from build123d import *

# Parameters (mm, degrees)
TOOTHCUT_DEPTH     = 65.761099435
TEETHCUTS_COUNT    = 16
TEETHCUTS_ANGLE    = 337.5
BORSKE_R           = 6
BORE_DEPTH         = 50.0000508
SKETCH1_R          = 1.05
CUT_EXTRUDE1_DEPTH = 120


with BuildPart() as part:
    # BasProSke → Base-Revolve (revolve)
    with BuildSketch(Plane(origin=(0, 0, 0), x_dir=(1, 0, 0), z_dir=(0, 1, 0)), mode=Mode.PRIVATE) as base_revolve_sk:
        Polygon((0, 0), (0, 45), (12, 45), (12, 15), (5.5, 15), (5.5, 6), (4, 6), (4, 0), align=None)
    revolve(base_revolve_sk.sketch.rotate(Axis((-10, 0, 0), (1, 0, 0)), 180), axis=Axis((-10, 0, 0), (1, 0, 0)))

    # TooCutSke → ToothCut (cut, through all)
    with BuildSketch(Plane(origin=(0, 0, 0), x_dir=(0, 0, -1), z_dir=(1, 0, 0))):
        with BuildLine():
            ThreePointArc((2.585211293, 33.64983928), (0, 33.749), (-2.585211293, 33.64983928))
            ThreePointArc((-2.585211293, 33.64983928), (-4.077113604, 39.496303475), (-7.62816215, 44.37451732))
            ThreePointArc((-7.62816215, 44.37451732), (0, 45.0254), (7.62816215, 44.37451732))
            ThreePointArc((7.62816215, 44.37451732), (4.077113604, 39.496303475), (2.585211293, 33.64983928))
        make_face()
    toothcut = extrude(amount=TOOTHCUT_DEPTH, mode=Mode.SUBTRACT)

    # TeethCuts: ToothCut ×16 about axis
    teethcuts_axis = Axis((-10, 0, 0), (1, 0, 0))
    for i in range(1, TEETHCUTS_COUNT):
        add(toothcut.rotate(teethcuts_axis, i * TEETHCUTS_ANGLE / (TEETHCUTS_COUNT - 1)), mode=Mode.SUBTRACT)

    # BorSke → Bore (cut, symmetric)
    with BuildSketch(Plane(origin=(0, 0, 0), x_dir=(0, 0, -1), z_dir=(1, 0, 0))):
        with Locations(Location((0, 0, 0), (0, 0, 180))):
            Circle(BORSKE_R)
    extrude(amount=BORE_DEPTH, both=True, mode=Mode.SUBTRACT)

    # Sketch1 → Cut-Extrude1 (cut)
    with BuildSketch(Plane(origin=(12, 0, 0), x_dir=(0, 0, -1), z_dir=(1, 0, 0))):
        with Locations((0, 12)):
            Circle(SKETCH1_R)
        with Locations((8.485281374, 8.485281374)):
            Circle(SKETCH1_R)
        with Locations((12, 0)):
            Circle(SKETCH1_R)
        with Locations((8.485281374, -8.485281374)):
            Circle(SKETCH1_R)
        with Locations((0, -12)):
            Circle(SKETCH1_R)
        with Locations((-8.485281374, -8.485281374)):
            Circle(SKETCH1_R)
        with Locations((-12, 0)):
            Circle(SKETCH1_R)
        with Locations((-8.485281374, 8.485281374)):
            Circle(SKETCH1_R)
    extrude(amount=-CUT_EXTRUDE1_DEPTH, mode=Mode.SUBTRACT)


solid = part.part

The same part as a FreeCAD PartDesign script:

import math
import FreeCAD as App
import Part
import Sketcher

V = App.Vector

doc = App.newDocument("Part")
params = doc.addObject("Spreadsheet::Sheet", "Params")
for row, (alias, value) in enumerate([
    ("sketch1_width", "4 mm"),
    ("sketch1_width2", "12 mm"),
    ("sketch1_height", "45 mm"),
    ("sketch1_height2", "6 mm"),
    ("sketch1_height3", "9 mm"),
    ("revolution_angle", "360 deg"),
    ("sketch2_radius", "16 mm"),
    ("sketch3_diameter", "12 mm"),
    ("pocket2_length", "100.000102 mm"),
    ("sketch4_diameter", "2.1 mm"),
    ("pocket3_length", "120 mm"),
], start=1):
    params.set(f"A{row}", alias)
    params.set(f"B{row}", "=" + value)
    params.setAlias(f"B{row}", alias)

body = doc.addObject("PartDesign::Body", "Body")

# Sketch on XZ plane
sketch1 = body.newObject("Sketcher::SketchObject", "Sketch")
sketch1.AttachmentSupport = (doc.getObject("XZ_Plane"), [""])
sketch1.MapMode = "FlatFace"
sketch1.addGeometry(Part.LineSegment(V(0, -45, 0), V(0, 0, 0)), False)
sketch1.addGeometry(Part.LineSegment(V(0, 0, 0), V(4, 0, 0)), False)
sketch1.addGeometry(Part.LineSegment(V(4, 0, 0), V(4, -6, 0)), False)
sketch1.addGeometry(Part.LineSegment(V(4, -6, 0), V(5.5, -6, 0)), False)
sketch1.addGeometry(Part.LineSegment(V(5.5, -6, 0), V(5.5, -15, 0)), False)
sketch1.addGeometry(Part.LineSegment(V(5.5, -15, 0), V(12, -15, 0)), False)
sketch1.addGeometry(Part.LineSegment(V(12, -15, 0), V(12, -45, 0)), False)
sketch1.addGeometry(Part.LineSegment(V(12, -45, 0), V(0, -45, 0)), False)
sketch1.addConstraint(Sketcher.Constraint("Coincident", 0, 2, 1, 1))
sketch1.addConstraint(Sketcher.Constraint("Coincident", 1, 2, 2, 1))
sketch1.addConstraint(Sketcher.Constraint("Coincident", 2, 2, 3, 1))
sketch1.addConstraint(Sketcher.Constraint("Coincident", 3, 2, 4, 1))
sketch1.addConstraint(Sketcher.Constraint("Coincident", 4, 2, 5, 1))
sketch1.addConstraint(Sketcher.Constraint("Coincident", 5, 2, 6, 1))
sketch1.addConstraint(Sketcher.Constraint("Coincident", 6, 2, 7, 1))
sketch1.addConstraint(Sketcher.Constraint("Coincident", 7, 2, 0, 1))
sketch1.addConstraint(Sketcher.Constraint("Vertical", 0))
sketch1.addConstraint(Sketcher.Constraint("Horizontal", 1))
sketch1.addConstraint(Sketcher.Constraint("Vertical", 2))
sketch1.addConstraint(Sketcher.Constraint("Horizontal", 3))
sketch1.addConstraint(Sketcher.Constraint("Vertical", 4))
sketch1.addConstraint(Sketcher.Constraint("Horizontal", 5))
sketch1.addConstraint(Sketcher.Constraint("Vertical", 6))
sketch1.addConstraint(Sketcher.Constraint("Horizontal", 7))
sketch1.addConstraint(Sketcher.Constraint("Coincident", 0, 2, -1, 1))
sketch1.addConstraint(Sketcher.Constraint("DistanceX", 1, 1, 1, 2, 4.0))
sketch1.addConstraint(Sketcher.Constraint("DistanceX", 7, 2, 7, 1, 12.0))
sketch1.addConstraint(Sketcher.Constraint("DistanceY", 0, 1, 0, 2, 45.0))
sketch1.addConstraint(Sketcher.Constraint("DistanceY", 2, 2, 2, 1, 6.0))
sketch1.addConstraint(Sketcher.Constraint("DistanceY", 4, 2, 4, 1, 9.0))
sketch1.addConstraint(Sketcher.Constraint("DistanceX", 3, 1, 3, 2, 1.5))
sketch1.setExpression("Constraints[17]", "Params.sketch1_width")
sketch1.setExpression("Constraints[18]", "Params.sketch1_width2")
sketch1.setExpression("Constraints[19]", "Params.sketch1_height")
sketch1.setExpression("Constraints[20]", "Params.sketch1_height2")
sketch1.setExpression("Constraints[21]", "Params.sketch1_height3")
revolution = body.newObject("PartDesign::Revolution", "Revolution")
revolution.Profile = sketch1
revolution.ReferenceAxis = (sketch1, ["H_Axis"])
revolution.setExpression("Angle", "Params.revolution_angle")

# Sketch on YZ plane
sketch2 = body.newObject("Sketcher::SketchObject", "Sketch001")
sketch2.AttachmentSupport = (doc.getObject("YZ_Plane"), [""])
sketch2.MapMode = "FlatFace"
sketch2.addGeometry(Part.ArcOfCircle(Part.Circle(V(0, 0, 0), V(0, 0, 1), 33.749), math.radians(-4.393225), math.radians(4.393225)), False)
sketch2.addGeometry(Part.ArcOfCircle(Part.Circle(V(32.687924, -18.55627, 0), V(0, 0, 1), 16), math.radians(43.07905), math.radians(86.553317)), False)
sketch2.addGeometry(Part.ArcOfCircle(Part.Circle(V(0, 0, 0), V(0, 0, 1), 45.0254), math.radians(-9.754045), math.radians(9.754045)), False)
sketch2.addGeometry(Part.ArcOfCircle(Part.Circle(V(32.687924, 18.55627, 0), V(0, 0, 1), 16), math.radians(-86.553317), math.radians(-43.07905)), False)
sketch2.addConstraint(Sketcher.Constraint("Coincident", 0, 1, 1, 2))
sketch2.addConstraint(Sketcher.Constraint("Coincident", 1, 1, 2, 1))
sketch2.addConstraint(Sketcher.Constraint("Coincident", 2, 2, 3, 2))
sketch2.addConstraint(Sketcher.Constraint("Coincident", 3, 1, 0, 2))
sketch2.addConstraint(Sketcher.Constraint("Coincident", 0, 3, -1, 1))
sketch2.addConstraint(Sketcher.Constraint("Coincident", 2, 3, -1, 1))
sketch2.addConstraint(Sketcher.Constraint("Equal", 1, 3))
sketch2.addConstraint(Sketcher.Constraint("Symmetric", 1, 3, 3, 3, -1))
sketch2.addConstraint(Sketcher.Constraint("Radius", 1, 16.0))
sketch2.addConstraint(Sketcher.Constraint("Radius", 0, 33.749))
sketch2.addConstraint(Sketcher.Constraint("Radius", 2, 45.0254))
sketch2.addConstraint(Sketcher.Constraint("DistanceY", 1, 3, -1, 1, 18.55627))
sketch2.addConstraint(Sketcher.Constraint("DistanceY", -1, 1, 3, 1, 2.585211))
sketch2.setExpression("Constraints[8]", "Params.sketch2_radius")
pocket1 = body.newObject("PartDesign::Pocket", "Pocket")
pocket1.Profile = sketch2
pocket1.Type = "ThroughAll"
pocket1.Reversed = True
doc.recompute()

polarpattern = body.newObject("PartDesign::PolarPattern", "PolarPattern")
polarpattern.Originals = [pocket1]
polarpattern.Axis = (doc.getObject("X_Axis"), [""])
polarpattern.Angle = 360
polarpattern.Occurrences = 16
body.Tip = polarpattern

# Sketch on YZ plane
sketch3 = body.newObject("Sketcher::SketchObject", "Sketch002")
sketch3.AttachmentSupport = (doc.getObject("YZ_Plane"), [""])
sketch3.MapMode = "FlatFace"
sketch3.addGeometry(Part.Circle(V(0, 0, 0), V(0, 0, 1), 6), False)
sketch3.addConstraint(Sketcher.Constraint("Coincident", 0, 3, -1, 1))
sketch3.addConstraint(Sketcher.Constraint("Diameter", 0, 12.0))
sketch3.setExpression("Constraints[1]", "Params.sketch3_diameter")
pocket2 = body.newObject("PartDesign::Pocket", "Pocket001")
pocket2.Profile = sketch3
pocket2.setExpression("Length", "Params.pocket2_length")
pocket2.Midplane = True

# Sketch on YZ plane
sketch4 = body.newObject("Sketcher::SketchObject", "Sketch003")
sketch4.AttachmentSupport = (doc.getObject("YZ_Plane"), [""])
sketch4.MapMode = "FlatFace"
sketch4.AttachmentOffset = App.Placement(V(0, 0, 12), App.Rotation())
sketch4.addGeometry(Part.Circle(V(12, 0, 0), V(0, 0, 1), 1.05), False)
sketch4.addGeometry(Part.Circle(V(8.485281, -8.485281, 0), V(0, 0, 1), 1.05), False)
sketch4.addGeometry(Part.Circle(V(0, -12, 0), V(0, 0, 1), 1.05), False)
sketch4.addGeometry(Part.Circle(V(-8.485281, -8.485281, 0), V(0, 0, 1), 1.05), False)
sketch4.addGeometry(Part.Circle(V(-12, 0, 0), V(0, 0, 1), 1.05), False)
sketch4.addGeometry(Part.Circle(V(-8.485281, 8.485281, 0), V(0, 0, 1), 1.05), False)
sketch4.addGeometry(Part.Circle(V(0, 12, 0), V(0, 0, 1), 1.05), False)
sketch4.addGeometry(Part.Circle(V(8.485281, 8.485281, 0), V(0, 0, 1), 1.05), False)
sketch4.addConstraint(Sketcher.Constraint("Equal", 0, 1))
sketch4.addConstraint(Sketcher.Constraint("Equal", 1, 2))
sketch4.addConstraint(Sketcher.Constraint("Equal", 2, 3))
sketch4.addConstraint(Sketcher.Constraint("Equal", 3, 4))
sketch4.addConstraint(Sketcher.Constraint("Equal", 4, 5))
sketch4.addConstraint(Sketcher.Constraint("Equal", 5, 6))
sketch4.addConstraint(Sketcher.Constraint("Equal", 6, 7))
sketch4.addConstraint(Sketcher.Constraint("Symmetric", 0, 3, 4, 3, -1, 1))
sketch4.addConstraint(Sketcher.Constraint("Symmetric", 1, 3, 5, 3, -1, 1))
sketch4.addConstraint(Sketcher.Constraint("Symmetric", 2, 3, 6, 3, -1, 1))
sketch4.addConstraint(Sketcher.Constraint("Symmetric", 3, 3, 7, 3, -1, 1))
sketch4.addConstraint(Sketcher.Constraint("Symmetric", 1, 3, 3, 3, -2))
sketch4.addConstraint(Sketcher.Constraint("PointOnObject", 0, 3, -1))
sketch4.addConstraint(Sketcher.Constraint("PointOnObject", 2, 3, -2))
sketch4.addConstraint(Sketcher.Constraint("Diameter", 0, 2.1))
sketch4.addConstraint(Sketcher.Constraint("DistanceX", -1, 1, 0, 3, 12.0))
sketch4.addConstraint(Sketcher.Constraint("DistanceY", 2, 3, -1, 1, 12.0))
sketch4.addConstraint(Sketcher.Constraint("DistanceX", -1, 1, 1, 3, 8.485281))
sketch4.addConstraint(Sketcher.Constraint("DistanceY", 1, 3, -1, 1, 8.485281))
sketch4.setExpression("Constraints[14]", "Params.sketch4_diameter")
pocket3 = body.newObject("PartDesign::Pocket", "Pocket002")
pocket3.Profile = sketch4
pocket3.setExpression("Length", "Params.pocket3_length")

doc.recompute()
